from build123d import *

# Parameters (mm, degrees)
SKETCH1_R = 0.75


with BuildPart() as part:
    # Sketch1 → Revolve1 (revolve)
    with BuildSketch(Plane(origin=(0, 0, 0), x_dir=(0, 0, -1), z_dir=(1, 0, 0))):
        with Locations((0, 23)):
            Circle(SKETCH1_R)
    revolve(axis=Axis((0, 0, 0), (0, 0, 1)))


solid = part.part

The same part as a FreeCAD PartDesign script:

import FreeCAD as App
import Part
import Sketcher

V = App.Vector
Q = App.Units.Quantity

doc = App.newDocument("Part")
body = doc.addObject("PartDesign::Body", "Body")

sketch1 = body.newObject("Sketcher::SketchObject", "Sketch")
sketch1.AttachmentSupport = (doc.getObject("YZ_Plane"), [""])
sketch1.MapMode = "FlatFace"
sketch1.addGeometry(Part.Circle(V(23, 0, 0), V(0, 0, 1), 0.8), False)
sketch1.addConstraint([
    Sketcher.Constraint("PointOnObject", 0, 3, -1),
    Sketcher.Constraint("Diameter", 0, Q("1.5 mm")),
    Sketcher.Constraint("DistanceX", -1, 1, 0, 3, Q("23 mm")),
])
revolution = body.newObject("PartDesign::Revolution", "Revolution")
revolution.Profile = sketch1
revolution.ReferenceAxis = (sketch1, ["V_Axis"])
revolution.Angle = 360

doc.recompute()
